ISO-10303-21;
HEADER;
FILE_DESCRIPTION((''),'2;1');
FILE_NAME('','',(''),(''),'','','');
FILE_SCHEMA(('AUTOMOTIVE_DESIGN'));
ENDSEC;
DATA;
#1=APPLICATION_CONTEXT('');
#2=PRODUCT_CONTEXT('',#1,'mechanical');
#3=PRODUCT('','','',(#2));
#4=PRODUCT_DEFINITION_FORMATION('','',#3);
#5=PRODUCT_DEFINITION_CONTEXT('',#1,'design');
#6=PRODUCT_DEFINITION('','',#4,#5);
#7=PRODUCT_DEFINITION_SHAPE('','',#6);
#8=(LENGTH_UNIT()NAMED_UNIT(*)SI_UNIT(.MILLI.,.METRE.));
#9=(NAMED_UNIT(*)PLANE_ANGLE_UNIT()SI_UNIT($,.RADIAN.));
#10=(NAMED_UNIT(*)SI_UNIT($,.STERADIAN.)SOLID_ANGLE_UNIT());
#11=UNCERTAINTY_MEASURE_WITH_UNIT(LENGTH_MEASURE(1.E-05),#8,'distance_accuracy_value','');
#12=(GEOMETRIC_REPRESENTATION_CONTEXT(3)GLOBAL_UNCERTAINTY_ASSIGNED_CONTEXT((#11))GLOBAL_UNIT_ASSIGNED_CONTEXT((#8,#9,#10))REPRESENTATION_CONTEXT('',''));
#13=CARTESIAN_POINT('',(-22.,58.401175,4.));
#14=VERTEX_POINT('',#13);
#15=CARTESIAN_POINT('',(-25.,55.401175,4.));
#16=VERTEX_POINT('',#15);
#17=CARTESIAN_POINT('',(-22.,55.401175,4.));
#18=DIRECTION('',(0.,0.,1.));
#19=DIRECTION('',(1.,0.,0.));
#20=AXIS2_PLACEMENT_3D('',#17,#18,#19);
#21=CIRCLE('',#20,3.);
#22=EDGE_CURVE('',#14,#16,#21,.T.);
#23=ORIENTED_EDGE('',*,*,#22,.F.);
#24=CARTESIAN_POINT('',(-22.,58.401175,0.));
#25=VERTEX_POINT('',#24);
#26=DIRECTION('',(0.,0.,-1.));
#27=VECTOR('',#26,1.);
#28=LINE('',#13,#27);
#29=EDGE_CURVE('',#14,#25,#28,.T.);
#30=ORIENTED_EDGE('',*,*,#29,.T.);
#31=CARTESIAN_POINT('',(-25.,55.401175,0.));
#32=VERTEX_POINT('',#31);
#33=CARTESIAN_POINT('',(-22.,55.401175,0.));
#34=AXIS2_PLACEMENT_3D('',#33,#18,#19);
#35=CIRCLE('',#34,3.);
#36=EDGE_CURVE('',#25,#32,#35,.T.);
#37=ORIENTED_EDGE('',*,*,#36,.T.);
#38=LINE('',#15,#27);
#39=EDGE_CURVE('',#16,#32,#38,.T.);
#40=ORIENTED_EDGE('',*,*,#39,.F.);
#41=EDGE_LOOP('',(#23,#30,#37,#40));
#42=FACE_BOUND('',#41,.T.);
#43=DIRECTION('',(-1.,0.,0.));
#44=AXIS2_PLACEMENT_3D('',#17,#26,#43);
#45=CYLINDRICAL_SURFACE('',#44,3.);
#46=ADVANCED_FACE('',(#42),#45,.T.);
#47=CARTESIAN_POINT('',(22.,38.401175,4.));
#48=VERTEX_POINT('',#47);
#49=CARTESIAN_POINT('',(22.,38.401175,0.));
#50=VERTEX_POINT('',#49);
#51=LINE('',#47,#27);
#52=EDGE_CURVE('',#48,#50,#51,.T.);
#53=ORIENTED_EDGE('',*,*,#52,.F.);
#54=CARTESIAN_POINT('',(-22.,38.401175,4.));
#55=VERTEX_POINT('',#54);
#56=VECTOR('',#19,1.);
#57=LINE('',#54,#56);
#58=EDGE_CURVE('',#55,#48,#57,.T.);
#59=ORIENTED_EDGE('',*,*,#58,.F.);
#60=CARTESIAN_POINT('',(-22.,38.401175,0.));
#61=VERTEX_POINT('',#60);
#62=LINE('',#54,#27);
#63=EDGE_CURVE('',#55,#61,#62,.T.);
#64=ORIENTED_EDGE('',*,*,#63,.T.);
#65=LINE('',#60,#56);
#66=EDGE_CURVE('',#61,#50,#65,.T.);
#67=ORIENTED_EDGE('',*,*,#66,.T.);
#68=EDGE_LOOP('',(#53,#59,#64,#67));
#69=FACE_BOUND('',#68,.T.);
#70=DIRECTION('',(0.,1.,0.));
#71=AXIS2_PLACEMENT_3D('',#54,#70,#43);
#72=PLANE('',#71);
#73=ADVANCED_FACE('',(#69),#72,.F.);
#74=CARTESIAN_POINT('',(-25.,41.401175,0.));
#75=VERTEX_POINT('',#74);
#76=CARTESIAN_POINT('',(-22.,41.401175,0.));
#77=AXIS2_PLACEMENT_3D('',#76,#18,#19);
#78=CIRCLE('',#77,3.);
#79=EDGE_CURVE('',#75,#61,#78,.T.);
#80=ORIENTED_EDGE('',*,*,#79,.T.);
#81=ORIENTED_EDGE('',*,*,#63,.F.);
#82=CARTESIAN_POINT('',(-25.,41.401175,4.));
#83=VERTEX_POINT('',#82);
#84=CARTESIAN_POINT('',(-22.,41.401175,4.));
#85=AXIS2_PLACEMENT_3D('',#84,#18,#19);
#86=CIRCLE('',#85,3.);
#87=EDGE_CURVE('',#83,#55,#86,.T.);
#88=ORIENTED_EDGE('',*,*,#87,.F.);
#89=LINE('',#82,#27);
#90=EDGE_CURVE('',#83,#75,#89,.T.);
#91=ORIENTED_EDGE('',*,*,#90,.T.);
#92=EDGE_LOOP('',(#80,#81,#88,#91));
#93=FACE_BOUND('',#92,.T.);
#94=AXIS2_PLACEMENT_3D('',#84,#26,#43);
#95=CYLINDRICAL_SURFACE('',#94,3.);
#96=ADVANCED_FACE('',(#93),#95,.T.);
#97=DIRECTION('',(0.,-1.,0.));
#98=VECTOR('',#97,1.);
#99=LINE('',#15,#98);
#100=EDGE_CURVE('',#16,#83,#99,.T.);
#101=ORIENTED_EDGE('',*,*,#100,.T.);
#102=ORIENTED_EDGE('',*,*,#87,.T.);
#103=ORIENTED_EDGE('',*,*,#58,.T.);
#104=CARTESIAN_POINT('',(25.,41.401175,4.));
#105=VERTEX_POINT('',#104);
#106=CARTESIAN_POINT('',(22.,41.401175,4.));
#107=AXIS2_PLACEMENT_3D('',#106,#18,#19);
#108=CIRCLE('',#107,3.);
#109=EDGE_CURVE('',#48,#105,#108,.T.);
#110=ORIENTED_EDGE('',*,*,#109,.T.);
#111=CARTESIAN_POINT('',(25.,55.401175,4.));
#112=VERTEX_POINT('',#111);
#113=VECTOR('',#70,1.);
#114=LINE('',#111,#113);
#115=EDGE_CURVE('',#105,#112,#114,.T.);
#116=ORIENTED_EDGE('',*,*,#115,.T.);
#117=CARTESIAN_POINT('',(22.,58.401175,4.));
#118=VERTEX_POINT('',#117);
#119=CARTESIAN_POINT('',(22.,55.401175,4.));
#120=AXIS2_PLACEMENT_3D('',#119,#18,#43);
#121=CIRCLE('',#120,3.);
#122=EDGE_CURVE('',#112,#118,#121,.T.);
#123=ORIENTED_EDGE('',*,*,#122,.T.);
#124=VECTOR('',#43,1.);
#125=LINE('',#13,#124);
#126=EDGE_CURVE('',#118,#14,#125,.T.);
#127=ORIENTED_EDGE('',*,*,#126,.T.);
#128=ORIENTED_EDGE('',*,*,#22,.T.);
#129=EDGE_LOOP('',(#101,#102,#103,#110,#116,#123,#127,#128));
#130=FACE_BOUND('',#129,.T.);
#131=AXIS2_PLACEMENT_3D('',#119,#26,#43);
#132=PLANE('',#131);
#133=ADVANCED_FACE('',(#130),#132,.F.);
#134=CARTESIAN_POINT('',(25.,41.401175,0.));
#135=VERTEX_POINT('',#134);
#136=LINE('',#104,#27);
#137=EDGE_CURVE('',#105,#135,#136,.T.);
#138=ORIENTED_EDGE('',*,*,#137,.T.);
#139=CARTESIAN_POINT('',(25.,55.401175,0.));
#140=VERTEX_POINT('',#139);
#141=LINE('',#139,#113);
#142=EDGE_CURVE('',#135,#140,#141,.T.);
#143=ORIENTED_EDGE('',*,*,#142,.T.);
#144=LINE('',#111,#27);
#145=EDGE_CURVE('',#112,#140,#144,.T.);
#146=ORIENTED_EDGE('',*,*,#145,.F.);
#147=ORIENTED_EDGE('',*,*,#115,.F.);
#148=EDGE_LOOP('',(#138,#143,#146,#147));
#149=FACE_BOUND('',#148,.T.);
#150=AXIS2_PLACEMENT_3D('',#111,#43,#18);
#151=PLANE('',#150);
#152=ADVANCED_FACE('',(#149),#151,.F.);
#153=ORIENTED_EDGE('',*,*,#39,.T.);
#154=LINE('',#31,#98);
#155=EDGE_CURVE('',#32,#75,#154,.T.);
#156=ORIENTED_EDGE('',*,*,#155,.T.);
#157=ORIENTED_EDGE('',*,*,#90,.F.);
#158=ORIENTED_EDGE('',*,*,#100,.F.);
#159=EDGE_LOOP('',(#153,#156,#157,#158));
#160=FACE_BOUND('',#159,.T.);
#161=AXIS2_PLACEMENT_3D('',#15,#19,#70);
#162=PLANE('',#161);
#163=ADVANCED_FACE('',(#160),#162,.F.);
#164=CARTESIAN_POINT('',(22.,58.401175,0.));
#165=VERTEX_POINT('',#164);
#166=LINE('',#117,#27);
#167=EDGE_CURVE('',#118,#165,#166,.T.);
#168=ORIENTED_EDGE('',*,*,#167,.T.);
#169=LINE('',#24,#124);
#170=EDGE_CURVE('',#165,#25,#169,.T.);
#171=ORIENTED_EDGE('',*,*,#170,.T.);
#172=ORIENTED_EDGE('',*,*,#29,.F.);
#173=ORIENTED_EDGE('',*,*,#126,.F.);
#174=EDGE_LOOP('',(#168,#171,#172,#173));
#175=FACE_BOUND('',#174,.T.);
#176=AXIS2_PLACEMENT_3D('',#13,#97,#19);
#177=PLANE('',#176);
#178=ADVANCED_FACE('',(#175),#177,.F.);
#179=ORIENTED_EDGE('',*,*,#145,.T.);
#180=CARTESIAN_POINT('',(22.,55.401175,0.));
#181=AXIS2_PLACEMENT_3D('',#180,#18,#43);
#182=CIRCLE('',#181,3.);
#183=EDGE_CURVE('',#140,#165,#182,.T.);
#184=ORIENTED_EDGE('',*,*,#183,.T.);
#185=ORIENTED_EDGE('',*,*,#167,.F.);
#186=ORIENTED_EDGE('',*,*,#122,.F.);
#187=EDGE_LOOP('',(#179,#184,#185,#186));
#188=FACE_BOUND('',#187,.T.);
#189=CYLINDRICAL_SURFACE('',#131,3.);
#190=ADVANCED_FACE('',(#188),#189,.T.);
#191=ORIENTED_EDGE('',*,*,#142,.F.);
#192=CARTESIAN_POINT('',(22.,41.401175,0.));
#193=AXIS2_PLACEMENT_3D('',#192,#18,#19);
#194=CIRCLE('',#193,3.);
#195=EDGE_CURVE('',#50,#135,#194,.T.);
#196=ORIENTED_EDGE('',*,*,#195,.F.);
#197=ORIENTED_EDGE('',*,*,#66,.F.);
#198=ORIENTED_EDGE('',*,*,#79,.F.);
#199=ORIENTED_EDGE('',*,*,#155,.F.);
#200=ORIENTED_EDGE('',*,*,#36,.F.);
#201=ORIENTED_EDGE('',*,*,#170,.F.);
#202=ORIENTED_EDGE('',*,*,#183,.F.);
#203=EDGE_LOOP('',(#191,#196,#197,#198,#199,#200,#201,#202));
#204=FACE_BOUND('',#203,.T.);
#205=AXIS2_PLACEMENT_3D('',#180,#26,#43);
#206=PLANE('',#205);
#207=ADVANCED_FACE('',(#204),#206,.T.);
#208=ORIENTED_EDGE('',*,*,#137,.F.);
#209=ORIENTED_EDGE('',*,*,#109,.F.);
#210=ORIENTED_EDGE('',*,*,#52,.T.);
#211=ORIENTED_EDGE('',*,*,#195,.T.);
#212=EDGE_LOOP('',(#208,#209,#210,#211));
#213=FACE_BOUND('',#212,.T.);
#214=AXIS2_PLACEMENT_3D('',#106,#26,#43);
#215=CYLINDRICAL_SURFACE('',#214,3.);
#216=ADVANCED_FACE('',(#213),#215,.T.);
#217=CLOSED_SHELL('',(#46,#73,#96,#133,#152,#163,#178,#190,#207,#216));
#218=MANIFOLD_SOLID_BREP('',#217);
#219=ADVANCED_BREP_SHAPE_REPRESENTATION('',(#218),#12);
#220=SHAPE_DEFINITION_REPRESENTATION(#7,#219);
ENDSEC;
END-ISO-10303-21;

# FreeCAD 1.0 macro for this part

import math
import FreeCAD as App
import Part
import Sketcher

V = App.Vector

doc = App.newDocument("Part")
body = doc.addObject("PartDesign::Body", "Body")

# Sketch on XY plane
sketch1 = doc.addObject("Sketcher::SketchObject", "Sketch")
body.addObject(sketch1)
sketch1.AttachmentSupport = (doc.XY_Plane, [""])
sketch1.MapMode = "FlatFace"
sketch1.addGeometry(Part.LineSegment(V(22, 58.4, 0), V(-22, 58.4, 0)), False)
sketch1.addGeometry(Part.ArcOfCircle(Part.Circle(V(-22, 55.4, 0), V(0, 0, 1), 3), math.radians(90), math.radians(180)), False)
sketch1.addGeometry(Part.LineSegment(V(-25, 55.4, 0), V(-25, 41.4, 0)), False)
sketch1.addGeometry(Part.ArcOfCircle(Part.Circle(V(-22, 41.4, 0), V(0, 0, 1), 3), math.radians(180), math.radians(270)), False)
sketch1.addGeometry(Part.LineSegment(V(-22, 38.4, 0), V(22, 38.4, 0)), False)
sketch1.addGeometry(Part.ArcOfCircle(Part.Circle(V(22, 41.4, 0), V(0, 0, 1), 3), math.radians(-90), math.radians(0)), False)
sketch1.addGeometry(Part.LineSegment(V(25, 41.4, 0), V(25, 55.4, 0)), False)
sketch1.addGeometry(Part.ArcOfCircle(Part.Circle(V(22, 55.4, 0), V(0, 0, 1), 3), math.radians(0), math.radians(90)), False)
sketch1.addConstraint(Sketcher.Constraint("Tangent", 0, 2, 1, 1))
sketch1.addConstraint(Sketcher.Constraint("Tangent", 1, 2, 2, 1))
sketch1.addConstraint(Sketcher.Constraint("Tangent", 2, 2, 3, 1))
sketch1.addConstraint(Sketcher.Constraint("Tangent", 3, 2, 4, 1))
sketch1.addConstraint(Sketcher.Constraint("Tangent", 4, 2, 5, 1))
sketch1.addConstraint(Sketcher.Constraint("Tangent", 5, 2, 6, 1))
sketch1.addConstraint(Sketcher.Constraint("Tangent", 6, 2, 7, 1))
sketch1.addConstraint(Sketcher.Constraint("Tangent", 7, 2, 0, 1))
sketch1.addConstraint(Sketcher.Constraint("Horizontal", 0))
sketch1.addConstraint(Sketcher.Constraint("Vertical", 2))
sketch1.addConstraint(Sketcher.Constraint("Horizontal", 4))
sketch1.addConstraint(Sketcher.Constraint("Vertical", 6))
sketch1.addConstraint(Sketcher.Constraint("Equal", 1, 3))
sketch1.addConstraint(Sketcher.Constraint("Equal", 3, 5))
sketch1.addConstraint(Sketcher.Constraint("Equal", 5, 7))
sketch1.addConstraint(Sketcher.Constraint("Radius", 1, 3.0))
sketch1.addConstraint(Sketcher.Constraint("DistanceX", 0, 2, 0, 1, 44.0))
sketch1.addConstraint(Sketcher.Constraint("DistanceY", 2, 2, 2, 1, 14.0))
sketch1.addConstraint(Sketcher.Constraint("DistanceX", 1, 3, -1, 1, 22.0))
sketch1.addConstraint(Sketcher.Constraint("DistanceY", -1, 1, 1, 3, 55.401175))
pad1 = doc.addObject("PartDesign::Pad", "Pad")
body.addObject(pad1)
pad1.Profile = sketch1
pad1.Length = 4

doc.recompute()
